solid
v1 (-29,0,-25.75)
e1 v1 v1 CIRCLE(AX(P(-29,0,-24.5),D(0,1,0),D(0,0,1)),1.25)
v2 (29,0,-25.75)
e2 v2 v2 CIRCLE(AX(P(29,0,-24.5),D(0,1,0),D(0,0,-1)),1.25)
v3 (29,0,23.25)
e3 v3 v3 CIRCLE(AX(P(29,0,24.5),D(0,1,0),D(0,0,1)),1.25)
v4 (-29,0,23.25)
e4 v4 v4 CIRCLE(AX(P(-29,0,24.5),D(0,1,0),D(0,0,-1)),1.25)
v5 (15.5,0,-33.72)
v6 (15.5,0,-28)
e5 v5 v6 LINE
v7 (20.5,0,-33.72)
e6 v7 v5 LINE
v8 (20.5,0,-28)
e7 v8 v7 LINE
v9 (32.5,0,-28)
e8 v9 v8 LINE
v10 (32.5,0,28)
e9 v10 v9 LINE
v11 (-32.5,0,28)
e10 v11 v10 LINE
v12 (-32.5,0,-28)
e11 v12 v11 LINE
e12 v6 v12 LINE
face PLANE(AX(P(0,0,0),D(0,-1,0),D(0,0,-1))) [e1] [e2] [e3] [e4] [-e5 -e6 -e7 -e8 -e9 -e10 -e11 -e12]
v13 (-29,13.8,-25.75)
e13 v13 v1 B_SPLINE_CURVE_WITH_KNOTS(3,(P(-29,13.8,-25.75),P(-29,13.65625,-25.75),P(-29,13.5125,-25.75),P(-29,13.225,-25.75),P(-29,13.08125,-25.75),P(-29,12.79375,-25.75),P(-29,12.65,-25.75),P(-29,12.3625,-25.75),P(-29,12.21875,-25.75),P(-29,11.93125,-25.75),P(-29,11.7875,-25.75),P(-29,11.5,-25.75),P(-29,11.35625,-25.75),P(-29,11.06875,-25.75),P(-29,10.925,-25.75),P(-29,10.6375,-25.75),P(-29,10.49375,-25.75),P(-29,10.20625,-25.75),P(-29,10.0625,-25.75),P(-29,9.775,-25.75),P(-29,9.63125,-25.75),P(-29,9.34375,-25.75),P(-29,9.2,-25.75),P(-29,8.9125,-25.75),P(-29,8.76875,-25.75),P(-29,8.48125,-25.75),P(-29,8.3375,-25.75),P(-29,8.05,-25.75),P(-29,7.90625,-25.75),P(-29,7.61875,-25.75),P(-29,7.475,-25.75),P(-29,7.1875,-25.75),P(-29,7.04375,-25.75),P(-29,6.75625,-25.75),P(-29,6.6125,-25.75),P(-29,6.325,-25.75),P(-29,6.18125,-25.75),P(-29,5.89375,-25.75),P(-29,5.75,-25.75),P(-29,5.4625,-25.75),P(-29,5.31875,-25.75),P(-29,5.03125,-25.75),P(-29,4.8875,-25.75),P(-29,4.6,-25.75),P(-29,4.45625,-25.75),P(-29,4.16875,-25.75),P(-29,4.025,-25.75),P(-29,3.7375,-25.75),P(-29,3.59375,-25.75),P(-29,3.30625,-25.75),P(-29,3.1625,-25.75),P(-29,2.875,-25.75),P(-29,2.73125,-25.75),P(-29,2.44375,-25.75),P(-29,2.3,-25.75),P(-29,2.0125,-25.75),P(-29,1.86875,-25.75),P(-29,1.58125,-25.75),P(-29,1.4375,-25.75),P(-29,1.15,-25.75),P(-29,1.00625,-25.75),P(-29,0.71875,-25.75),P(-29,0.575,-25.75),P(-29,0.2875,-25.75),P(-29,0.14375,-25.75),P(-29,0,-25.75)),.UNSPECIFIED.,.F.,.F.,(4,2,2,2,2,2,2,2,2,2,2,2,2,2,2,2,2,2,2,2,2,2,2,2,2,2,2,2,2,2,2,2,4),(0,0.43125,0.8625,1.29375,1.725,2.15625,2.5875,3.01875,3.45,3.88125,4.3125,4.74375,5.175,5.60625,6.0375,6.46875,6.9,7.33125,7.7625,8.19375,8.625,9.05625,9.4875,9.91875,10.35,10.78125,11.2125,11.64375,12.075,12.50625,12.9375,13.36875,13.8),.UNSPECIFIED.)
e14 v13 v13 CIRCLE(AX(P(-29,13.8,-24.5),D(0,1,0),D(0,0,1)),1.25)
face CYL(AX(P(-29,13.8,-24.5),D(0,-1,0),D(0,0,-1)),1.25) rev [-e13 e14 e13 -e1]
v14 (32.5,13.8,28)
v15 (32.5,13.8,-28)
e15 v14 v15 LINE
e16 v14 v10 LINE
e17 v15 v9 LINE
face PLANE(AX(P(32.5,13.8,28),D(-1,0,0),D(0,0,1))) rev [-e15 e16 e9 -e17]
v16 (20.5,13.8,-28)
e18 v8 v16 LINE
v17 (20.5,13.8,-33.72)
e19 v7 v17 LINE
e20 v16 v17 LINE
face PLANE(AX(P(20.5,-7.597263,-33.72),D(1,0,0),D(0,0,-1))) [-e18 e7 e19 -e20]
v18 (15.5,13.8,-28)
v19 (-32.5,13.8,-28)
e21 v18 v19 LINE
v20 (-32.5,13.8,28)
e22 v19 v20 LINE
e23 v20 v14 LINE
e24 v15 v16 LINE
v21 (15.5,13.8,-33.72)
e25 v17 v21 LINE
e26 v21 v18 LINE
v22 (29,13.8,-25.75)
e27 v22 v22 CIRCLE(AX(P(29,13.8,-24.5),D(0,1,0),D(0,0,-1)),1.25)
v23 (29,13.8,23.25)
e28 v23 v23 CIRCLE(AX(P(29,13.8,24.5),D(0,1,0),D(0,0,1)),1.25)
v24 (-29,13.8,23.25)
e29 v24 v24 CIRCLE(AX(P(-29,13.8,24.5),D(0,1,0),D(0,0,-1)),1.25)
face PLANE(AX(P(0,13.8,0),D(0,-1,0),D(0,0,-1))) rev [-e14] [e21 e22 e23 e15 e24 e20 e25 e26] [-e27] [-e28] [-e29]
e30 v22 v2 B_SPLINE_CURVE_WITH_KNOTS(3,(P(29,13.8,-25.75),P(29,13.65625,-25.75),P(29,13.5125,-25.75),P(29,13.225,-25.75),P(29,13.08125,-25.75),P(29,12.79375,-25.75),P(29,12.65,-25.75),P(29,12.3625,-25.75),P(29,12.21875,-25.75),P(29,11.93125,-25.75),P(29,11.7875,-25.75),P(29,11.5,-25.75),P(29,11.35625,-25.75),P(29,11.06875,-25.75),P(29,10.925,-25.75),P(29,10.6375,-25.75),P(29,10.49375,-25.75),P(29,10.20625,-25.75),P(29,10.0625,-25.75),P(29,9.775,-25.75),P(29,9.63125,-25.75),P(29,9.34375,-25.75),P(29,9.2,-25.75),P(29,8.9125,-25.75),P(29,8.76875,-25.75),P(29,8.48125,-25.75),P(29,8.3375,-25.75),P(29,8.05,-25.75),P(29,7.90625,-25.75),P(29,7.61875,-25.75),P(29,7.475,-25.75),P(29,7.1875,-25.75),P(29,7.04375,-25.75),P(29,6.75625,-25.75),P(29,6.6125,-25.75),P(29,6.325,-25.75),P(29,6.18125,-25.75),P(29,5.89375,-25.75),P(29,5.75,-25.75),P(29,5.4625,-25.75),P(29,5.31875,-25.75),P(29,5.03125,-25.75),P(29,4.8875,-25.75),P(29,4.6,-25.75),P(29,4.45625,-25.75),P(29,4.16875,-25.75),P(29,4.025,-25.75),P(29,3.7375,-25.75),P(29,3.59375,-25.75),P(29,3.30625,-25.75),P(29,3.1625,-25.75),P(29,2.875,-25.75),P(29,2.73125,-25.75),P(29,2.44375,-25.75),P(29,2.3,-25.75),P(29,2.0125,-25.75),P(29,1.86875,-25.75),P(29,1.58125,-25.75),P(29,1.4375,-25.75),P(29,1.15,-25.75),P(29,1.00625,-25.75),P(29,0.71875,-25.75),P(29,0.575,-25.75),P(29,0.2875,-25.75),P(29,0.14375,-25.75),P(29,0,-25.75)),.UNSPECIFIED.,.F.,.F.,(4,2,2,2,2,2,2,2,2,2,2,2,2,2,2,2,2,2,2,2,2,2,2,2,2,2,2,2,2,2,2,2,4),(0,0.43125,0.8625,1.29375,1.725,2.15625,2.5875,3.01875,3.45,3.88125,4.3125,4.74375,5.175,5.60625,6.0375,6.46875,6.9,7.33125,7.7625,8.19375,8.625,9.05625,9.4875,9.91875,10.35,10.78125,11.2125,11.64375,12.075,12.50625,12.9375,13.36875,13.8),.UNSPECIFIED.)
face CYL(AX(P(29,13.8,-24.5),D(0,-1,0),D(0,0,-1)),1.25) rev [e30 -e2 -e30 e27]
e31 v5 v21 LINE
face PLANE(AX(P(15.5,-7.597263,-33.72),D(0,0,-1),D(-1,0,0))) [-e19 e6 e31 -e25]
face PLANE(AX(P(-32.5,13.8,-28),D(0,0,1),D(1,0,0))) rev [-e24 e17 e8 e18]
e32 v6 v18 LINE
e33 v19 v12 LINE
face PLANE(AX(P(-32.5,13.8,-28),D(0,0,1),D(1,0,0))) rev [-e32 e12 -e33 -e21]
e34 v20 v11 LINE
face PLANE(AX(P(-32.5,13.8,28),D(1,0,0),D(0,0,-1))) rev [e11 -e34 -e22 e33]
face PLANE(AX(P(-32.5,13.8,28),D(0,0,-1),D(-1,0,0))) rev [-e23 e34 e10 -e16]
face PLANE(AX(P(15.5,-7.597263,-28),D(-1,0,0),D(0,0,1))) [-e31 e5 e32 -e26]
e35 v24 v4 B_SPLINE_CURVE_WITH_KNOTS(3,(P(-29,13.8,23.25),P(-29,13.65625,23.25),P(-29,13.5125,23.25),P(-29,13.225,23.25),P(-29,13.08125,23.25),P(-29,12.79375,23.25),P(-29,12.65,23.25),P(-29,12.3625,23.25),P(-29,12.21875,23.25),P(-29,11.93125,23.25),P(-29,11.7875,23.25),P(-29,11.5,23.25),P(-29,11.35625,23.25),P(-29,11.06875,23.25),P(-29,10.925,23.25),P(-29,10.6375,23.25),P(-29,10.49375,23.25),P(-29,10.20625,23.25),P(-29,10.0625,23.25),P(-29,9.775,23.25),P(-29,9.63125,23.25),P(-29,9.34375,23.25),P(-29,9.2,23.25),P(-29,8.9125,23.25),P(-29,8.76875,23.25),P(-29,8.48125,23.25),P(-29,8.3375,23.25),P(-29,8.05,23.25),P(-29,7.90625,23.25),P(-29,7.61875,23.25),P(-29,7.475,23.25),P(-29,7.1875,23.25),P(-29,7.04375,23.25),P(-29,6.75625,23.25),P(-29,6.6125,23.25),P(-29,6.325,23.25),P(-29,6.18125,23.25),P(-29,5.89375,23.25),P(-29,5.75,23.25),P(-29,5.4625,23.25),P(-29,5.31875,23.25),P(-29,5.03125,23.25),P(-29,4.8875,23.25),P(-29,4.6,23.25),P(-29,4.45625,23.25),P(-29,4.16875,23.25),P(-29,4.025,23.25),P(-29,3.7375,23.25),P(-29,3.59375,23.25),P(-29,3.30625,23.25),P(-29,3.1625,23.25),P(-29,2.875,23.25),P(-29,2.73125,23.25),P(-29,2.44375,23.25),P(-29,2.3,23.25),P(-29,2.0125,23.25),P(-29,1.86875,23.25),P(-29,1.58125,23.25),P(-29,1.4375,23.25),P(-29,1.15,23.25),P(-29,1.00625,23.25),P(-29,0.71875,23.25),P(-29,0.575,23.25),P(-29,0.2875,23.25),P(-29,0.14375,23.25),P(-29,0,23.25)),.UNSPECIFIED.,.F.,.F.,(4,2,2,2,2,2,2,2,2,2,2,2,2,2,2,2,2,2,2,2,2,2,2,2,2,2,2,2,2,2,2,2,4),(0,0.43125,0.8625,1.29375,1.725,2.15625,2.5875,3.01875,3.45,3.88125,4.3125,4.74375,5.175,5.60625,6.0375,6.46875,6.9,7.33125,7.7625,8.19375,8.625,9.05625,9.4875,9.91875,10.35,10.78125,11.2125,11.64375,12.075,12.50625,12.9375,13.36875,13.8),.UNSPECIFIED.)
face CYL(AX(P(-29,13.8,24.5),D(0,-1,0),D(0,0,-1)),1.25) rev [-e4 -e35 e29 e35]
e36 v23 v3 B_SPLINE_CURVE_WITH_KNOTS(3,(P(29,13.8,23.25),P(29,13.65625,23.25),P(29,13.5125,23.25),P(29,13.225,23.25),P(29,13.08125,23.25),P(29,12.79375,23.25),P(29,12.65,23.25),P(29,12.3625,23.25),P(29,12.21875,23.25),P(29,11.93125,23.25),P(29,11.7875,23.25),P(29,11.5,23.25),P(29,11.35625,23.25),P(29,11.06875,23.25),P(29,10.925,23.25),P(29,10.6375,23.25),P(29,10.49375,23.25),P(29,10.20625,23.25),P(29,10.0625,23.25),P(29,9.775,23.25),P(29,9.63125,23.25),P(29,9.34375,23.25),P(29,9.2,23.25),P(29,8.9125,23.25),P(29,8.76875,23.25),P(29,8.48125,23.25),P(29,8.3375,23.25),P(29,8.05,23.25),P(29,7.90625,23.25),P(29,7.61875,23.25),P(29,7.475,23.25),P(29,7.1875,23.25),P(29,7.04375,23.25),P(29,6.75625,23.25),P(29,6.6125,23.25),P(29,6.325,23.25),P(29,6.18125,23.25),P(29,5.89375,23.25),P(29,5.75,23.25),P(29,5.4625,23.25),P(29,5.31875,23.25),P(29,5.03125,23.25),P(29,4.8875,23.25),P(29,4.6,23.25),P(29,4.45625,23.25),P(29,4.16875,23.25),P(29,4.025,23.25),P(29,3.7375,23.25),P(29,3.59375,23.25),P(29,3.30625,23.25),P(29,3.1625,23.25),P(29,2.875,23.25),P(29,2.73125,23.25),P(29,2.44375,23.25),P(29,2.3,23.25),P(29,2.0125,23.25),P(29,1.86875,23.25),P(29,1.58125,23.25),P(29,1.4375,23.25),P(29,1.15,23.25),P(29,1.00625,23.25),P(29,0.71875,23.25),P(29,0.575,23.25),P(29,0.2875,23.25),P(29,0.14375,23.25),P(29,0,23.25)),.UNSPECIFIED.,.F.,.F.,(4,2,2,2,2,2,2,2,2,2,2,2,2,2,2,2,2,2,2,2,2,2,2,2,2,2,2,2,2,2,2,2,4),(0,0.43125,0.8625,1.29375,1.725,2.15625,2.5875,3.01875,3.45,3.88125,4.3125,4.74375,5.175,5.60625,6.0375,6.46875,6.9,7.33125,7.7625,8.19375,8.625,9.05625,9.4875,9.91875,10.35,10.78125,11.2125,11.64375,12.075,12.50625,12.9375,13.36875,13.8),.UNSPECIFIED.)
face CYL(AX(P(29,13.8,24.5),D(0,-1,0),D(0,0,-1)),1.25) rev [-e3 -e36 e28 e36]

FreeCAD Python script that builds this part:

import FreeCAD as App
import Part
import Sketcher

doc = App.newDocument("Part")
params = doc.addObject("Spreadsheet::Sheet", "Params")
for row, (alias, value) in enumerate([
    ("sketch1_diameter", "2.5 mm"),
    ("sketch1_width", "65 mm"),
    ("sketch1_height", "56 mm"),
    ("pad1_length", "13.8 mm"),
    ("sketch2_width", "5 mm"),
    ("sketch2_height", "5.72 mm"),
    ("pad2_length", "13.8 mm"),
], start=1):
    params.set(f"A{row}", alias)
    params.set(f"B{row}", "=" + value)
    params.setAlias(f"B{row}", alias)

body = doc.addObject("PartDesign::Body", "Body")

sketch1 = body.newObject("Sketcher::SketchObject", "Sketch")
sketch1.AttachmentSupport = (doc.getObject("XZ_Plane"), [""])
sketch1.MapMode = "FlatFace"
sketch1.addGeometry([
    Part.LineSegment(App.Vector(-32.5, -28, 0), App.Vector(-32.5, 28, 0)),
    Part.LineSegment(App.Vector(-32.5, 28, 0), App.Vector(32.5, 28, 0)),
    Part.LineSegment(App.Vector(32.5, 28, 0), App.Vector(32.5, -28, 0)),
    Part.LineSegment(App.Vector(32.5, -28, 0), App.Vector(-32.5, -28, 0)),
    Part.Circle(App.Vector(-29, 24.5, 0), App.Vector(0, 0, 1), 1.2),
    Part.Circle(App.Vector(29, 24.5, 0), App.Vector(0, 0, 1), 1.2),
    Part.Circle(App.Vector(-29, -24.5, 0), App.Vector(0, 0, 1), 1.2),
    Part.Circle(App.Vector(29, -24.5, 0), App.Vector(0, 0, 1), 1.2),
], False)
sketch1.addConstraint([
    Sketcher.Constraint("Coincident", 0, 2, 1, 1),
    Sketcher.Constraint("Coincident", 1, 2, 2, 1),
    Sketcher.Constraint("Coincident", 2, 2, 3, 1),
    Sketcher.Constraint("Coincident", 3, 2, 0, 1),
    Sketcher.Constraint("Vertical", 0),
    Sketcher.Constraint("Horizontal", 1),
    Sketcher.Constraint("Vertical", 2),
    Sketcher.Constraint("Horizontal", 3),
    Sketcher.Constraint("Equal", 4, 5),
    Sketcher.Constraint("Equal", 5, 6),
    Sketcher.Constraint("Equal", 6, 7),
    Sketcher.Constraint("Symmetric", 5, 3, 6, 3, -1, 1),
    Sketcher.Constraint("Symmetric", 4, 3, 7, 3, -1, 1),
    Sketcher.Constraint("Symmetric", 0, 2, 2, 2, -1, 1),
    Sketcher.Constraint("Symmetric", 4, 3, 5, 3, -2),
    Sketcher.Constraint("Diameter", 4, 2.5),
    Sketcher.Constraint("DistanceX", 1, 1, 1, 2, 65.0),
    Sketcher.Constraint("DistanceY", 0, 1, 0, 2, 56.0),
    Sketcher.Constraint("DistanceX", 4, 3, -1, 1, 29.0),
    Sketcher.Constraint("DistanceY", 6, 3, 4, 3, 49.0),
])
sketch1.setExpression("Constraints[15]", "Params.sketch1_diameter")
sketch1.setExpression("Constraints[16]", "Params.sketch1_width")
sketch1.setExpression("Constraints[17]", "Params.sketch1_height")
pad1 = body.newObject("PartDesign::Pad", "Pad")
pad1.Profile = sketch1
pad1.setExpression("Length", "Params.pad1_length")
pad1.Reversed = True

sketch2 = body.newObject("Sketcher::SketchObject", "Sketch001")
sketch2.AttachmentSupport = (doc.getObject("XZ_Plane"), [""])
sketch2.MapMode = "FlatFace"
sketch2.AttachmentOffset = App.Placement(App.Vector(0, 0, -13.8), App.Rotation())
sketch2.addGeometry([
    Part.LineSegment(App.Vector(16, -34, 0), App.Vector(16, -28, 0)),
    Part.LineSegment(App.Vector(16, -28, 0), App.Vector(20, -28, 0)),
    Part.LineSegment(App.Vector(20, -28, 0), App.Vector(20, -34, 0)),
    Part.LineSegment(App.Vector(20, -34, 0), App.Vector(16, -34, 0)),
], False)
sketch2.addConstraint([
    Sketcher.Constraint("Coincident", 0, 2, 1, 1),
    Sketcher.Constraint("Coincident", 1, 2, 2, 1),
    Sketcher.Constraint("Coincident", 2, 2, 3, 1),
    Sketcher.Constraint("Coincident", 3, 2, 0, 1),
    Sketcher.Constraint("Vertical", 0),
    Sketcher.Constraint("Horizontal", 1),
    Sketcher.Constraint("Vertical", 2),
    Sketcher.Constraint("Horizontal", 3),
    Sketcher.Constraint("DistanceX", 1, 1, 1, 2, 5.0),
    Sketcher.Constraint("DistanceY", 0, 2, -1, 1, 28.0),
    Sketcher.Constraint("DistanceY", 0, 1, 0, 2, 5.72),
    Sketcher.Constraint("DistanceX", -1, 1, 0, 2, 15.5),
])
sketch2.setExpression("Constraints[8]", "Params.sketch2_width")
sketch2.setExpression("Constraints[10]", "Params.sketch2_height")
pad2 = body.newObject("PartDesign::Pad", "Pad001")
pad2.Profile = sketch2
pad2.setExpression("Length", "Params.pad2_length")

doc.recompute()
